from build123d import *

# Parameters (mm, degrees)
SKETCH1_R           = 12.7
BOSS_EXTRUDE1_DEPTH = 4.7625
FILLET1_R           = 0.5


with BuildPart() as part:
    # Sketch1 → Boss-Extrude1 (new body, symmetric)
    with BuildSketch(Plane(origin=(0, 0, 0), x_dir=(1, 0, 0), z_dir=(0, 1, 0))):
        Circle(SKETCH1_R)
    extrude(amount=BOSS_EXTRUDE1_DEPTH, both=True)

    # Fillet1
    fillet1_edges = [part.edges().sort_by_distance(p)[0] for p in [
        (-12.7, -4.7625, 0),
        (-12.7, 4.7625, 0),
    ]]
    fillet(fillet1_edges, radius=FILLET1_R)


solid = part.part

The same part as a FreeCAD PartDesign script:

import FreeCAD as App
import Part
import Sketcher
Q = App.Units.Quantity


def edges_at(feature, points):
    """Names of the edges that pass closest to the given points."""
    edges = feature.Shape.Edges
    near = lambda p: min(range(len(edges)), key=lambda i: edges[i].distToShape(Part.Vertex(*p))[0])
    return sorted({f"Edge{near(p) + 1}" for p in points})

doc = App.newDocument("Part")
body = doc.addObject("PartDesign::Body", "Body")

# Sketch on XZ plane
sketch1 = body.newObject("Sketcher::SketchObject", "Sketch")
sketch1.AttachmentSupport = (doc.getObject("XZ_Plane"), [""])
sketch1.MapMode = "FlatFace"
sketch1.addGeometry(Part.Circle(App.Vector(0, 0, 0), App.Vector(0, 0, 1), 13), False)
sketch1.addConstraint(Sketcher.Constraint("Coincident", 0, 3, -1, 1))
sketch1.addConstraint(Sketcher.Constraint("Diameter", 0, Q("1 in")))
pad1 = body.newObject("PartDesign::Pad", "Pad")
pad1.Profile = sketch1
pad1.Length = Q("0.375 in")
pad1.Midplane = True
doc.recompute()

fillet = body.newObject("PartDesign::Fillet", "Fillet")
fillet.Base = (pad1, edges_at(pad1, [(-12.7, -4.763, 0), (-12.7, 4.763, 0)]))
fillet.Radius = 0.5

doc.recompute()
